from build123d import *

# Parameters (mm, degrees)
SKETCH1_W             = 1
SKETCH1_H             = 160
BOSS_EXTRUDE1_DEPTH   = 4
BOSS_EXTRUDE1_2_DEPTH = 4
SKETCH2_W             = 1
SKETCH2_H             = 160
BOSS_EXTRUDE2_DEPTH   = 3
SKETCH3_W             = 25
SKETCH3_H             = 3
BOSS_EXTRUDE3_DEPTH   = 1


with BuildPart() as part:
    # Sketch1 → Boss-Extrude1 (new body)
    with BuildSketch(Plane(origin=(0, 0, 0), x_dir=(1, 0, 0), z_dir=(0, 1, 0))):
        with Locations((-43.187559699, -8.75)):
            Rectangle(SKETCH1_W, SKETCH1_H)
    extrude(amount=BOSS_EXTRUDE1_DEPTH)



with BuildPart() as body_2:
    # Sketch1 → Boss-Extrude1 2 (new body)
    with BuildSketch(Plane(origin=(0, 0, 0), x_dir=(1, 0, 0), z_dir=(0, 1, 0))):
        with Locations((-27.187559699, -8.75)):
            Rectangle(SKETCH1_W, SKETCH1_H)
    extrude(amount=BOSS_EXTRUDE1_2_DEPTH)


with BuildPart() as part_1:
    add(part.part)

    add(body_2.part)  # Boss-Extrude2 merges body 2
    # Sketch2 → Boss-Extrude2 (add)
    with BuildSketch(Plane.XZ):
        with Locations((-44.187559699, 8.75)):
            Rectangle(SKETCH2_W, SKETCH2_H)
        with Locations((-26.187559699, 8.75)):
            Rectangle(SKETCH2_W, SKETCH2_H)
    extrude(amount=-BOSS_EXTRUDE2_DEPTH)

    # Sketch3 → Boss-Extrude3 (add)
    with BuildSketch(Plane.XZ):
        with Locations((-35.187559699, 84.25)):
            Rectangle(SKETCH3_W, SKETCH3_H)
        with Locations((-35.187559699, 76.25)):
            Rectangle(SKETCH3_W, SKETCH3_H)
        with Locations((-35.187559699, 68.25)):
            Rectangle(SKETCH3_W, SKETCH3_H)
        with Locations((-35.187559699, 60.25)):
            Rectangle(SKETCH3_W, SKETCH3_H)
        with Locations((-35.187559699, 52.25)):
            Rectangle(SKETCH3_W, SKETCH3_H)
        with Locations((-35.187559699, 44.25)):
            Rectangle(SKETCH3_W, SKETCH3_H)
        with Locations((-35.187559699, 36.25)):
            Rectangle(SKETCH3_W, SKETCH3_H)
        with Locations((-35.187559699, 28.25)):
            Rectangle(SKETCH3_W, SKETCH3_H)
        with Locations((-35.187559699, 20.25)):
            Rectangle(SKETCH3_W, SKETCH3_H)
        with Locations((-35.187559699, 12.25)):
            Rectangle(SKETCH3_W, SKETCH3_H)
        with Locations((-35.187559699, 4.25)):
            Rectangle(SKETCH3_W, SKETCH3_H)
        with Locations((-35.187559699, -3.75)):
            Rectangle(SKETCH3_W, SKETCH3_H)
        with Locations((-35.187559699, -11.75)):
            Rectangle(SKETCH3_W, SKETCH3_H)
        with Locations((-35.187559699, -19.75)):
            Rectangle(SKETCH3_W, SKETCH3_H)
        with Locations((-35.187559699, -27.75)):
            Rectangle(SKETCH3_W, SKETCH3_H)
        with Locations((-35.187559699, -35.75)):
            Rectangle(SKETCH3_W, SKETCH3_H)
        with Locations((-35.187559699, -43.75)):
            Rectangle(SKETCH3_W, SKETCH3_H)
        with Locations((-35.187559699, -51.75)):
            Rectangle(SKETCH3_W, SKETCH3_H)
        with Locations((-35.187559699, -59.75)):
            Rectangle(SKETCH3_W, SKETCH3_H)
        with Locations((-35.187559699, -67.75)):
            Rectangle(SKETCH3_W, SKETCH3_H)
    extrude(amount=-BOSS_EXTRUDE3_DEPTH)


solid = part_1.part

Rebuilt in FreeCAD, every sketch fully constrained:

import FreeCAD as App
import Part
import Sketcher

V = App.Vector

doc = App.newDocument("Part")
body = doc.addObject("PartDesign::Body", "Body")

# Sketch on XZ plane
sketch1 = body.newObject("Sketcher::SketchObject", "Sketch")
sketch1.AttachmentSupport = (doc.getObject("XZ_Plane"), [""])
sketch1.MapMode = "FlatFace"
sketch1.addGeometry([
    Part.LineSegment(V(-43.7, -71.2, 0), V(-43.7, 88.8, 0)),
    Part.LineSegment(V(-43.7, 88.8, 0), V(-42.7, 88.8, 0)),
    Part.LineSegment(V(-42.7, 88.8, 0), V(-42.7, -71.2, 0)),
    Part.LineSegment(V(-42.7, -71.2, 0), V(-43.7, -71.2, 0)),
], False)
sketch1.addConstraint([
    Sketcher.Constraint("Coincident", 0, 2, 1, 1),
    Sketcher.Constraint("Coincident", 1, 2, 2, 1),
    Sketcher.Constraint("Coincident", 2, 2, 3, 1),
    Sketcher.Constraint("Coincident", 3, 2, 0, 1),
    Sketcher.Constraint("Vertical", 0),
    Sketcher.Constraint("Horizontal", 1),
    Sketcher.Constraint("Vertical", 2),
    Sketcher.Constraint("Horizontal", 3),
    Sketcher.Constraint("DistanceX", 1, 1, 1, 2, 1.0),
    Sketcher.Constraint("DistanceY", 0, 1, 0, 2, 160.0),
    Sketcher.Constraint("DistanceY", -1, 1, 0, 2, 88.75),
    Sketcher.Constraint("DistanceX", 0, 2, -1, 1, 43.68756),
])
pad1 = body.newObject("PartDesign::Pad", "Pad")
pad1.Profile = sketch1
pad1.Length = 4
pad1.Reversed = True
body2 = doc.addObject("PartDesign::Body", "Body001")

# Sketch on XZ plane
sketch2 = body2.newObject("Sketcher::SketchObject", "Sketch001")
sketch2.AttachmentSupport = (doc.getObject("XZ_Plane001"), [""])
sketch2.MapMode = "FlatFace"
sketch2.addGeometry([
    Part.LineSegment(V(-27.7, -71.2, 0), V(-27.7, 88.8, 0)),
    Part.LineSegment(V(-27.7, 88.8, 0), V(-26.7, 88.8, 0)),
    Part.LineSegment(V(-26.7, 88.8, 0), V(-26.7, -71.2, 0)),
    Part.LineSegment(V(-26.7, -71.2, 0), V(-27.7, -71.2, 0)),
], False)
sketch2.addConstraint([
    Sketcher.Constraint("Coincident", 0, 2, 1, 1),
    Sketcher.Constraint("Coincident", 1, 2, 2, 1),
    Sketcher.Constraint("Coincident", 2, 2, 3, 1),
    Sketcher.Constraint("Coincident", 3, 2, 0, 1),
    Sketcher.Constraint("Vertical", 0),
    Sketcher.Constraint("Horizontal", 1),
    Sketcher.Constraint("Vertical", 2),
    Sketcher.Constraint("Horizontal", 3),
    Sketcher.Constraint("DistanceX", 1, 1, 1, 2, 1.0),
    Sketcher.Constraint("DistanceY", 0, 1, 0, 2, 160.0),
    Sketcher.Constraint("DistanceY", -1, 1, 0, 2, 88.75),
    Sketcher.Constraint("DistanceX", 0, 2, -1, 1, 27.68756),
])
pad2 = body2.newObject("PartDesign::Pad", "Pad001")
pad2.Profile = sketch2
pad2.Length = 4
pad2.Reversed = True
body.AllowCompound = True
doc.recompute()

boolean = body.newObject("PartDesign::Boolean", "Boolean")
boolean.Type = "Fuse"
boolean.addObjects([body2])

# Sketch on XZ plane
sketch3 = body.newObject("Sketcher::SketchObject", "Sketch002")
sketch3.AttachmentSupport = (doc.getObject("XZ_Plane"), [""])
sketch3.MapMode = "FlatFace"
sketch3.addGeometry([
    Part.LineSegment(V(-44.7, 88.8, 0), V(-44.7, -71.2, 0)),  # 0
    Part.LineSegment(V(-44.7, -71.2, 0), V(-43.7, -71.2, 0)),  # 1
    Part.LineSegment(V(-43.7, -71.2, 0), V(-43.7, 88.8, 0)),  # 2
    Part.LineSegment(V(-43.7, 88.8, 0), V(-44.7, 88.8, 0)),  # 3
    Part.LineSegment(V(-26.7, 88.8, 0), V(-26.7, -71.2, 0)),  # 4
    Part.LineSegment(V(-26.7, -71.2, 0), V(-25.7, -71.2, 0)),  # 5
    Part.LineSegment(V(-25.7, -71.2, 0), V(-25.7, 88.8, 0)),  # 6
    Part.LineSegment(V(-25.7, 88.8, 0), V(-26.7, 88.8, 0)),  # 7
], False)
sketch3.addConstraint([
    Sketcher.Constraint("Coincident", 0, 2, 1, 1),
    Sketcher.Constraint("Coincident", 1, 2, 2, 1),
    Sketcher.Constraint("Coincident", 2, 2, 3, 1),
    Sketcher.Constraint("Coincident", 3, 2, 0, 1),
    Sketcher.Constraint("Coincident", 4, 2, 5, 1),
    Sketcher.Constraint("Coincident", 5, 2, 6, 1),
    Sketcher.Constraint("Coincident", 6, 2, 7, 1),
    Sketcher.Constraint("Coincident", 7, 2, 4, 1),
    Sketcher.Constraint("Vertical", 0),
    Sketcher.Constraint("Horizontal", 1),
    Sketcher.Constraint("Vertical", 2),
    Sketcher.Constraint("Horizontal", 3),
    Sketcher.Constraint("Vertical", 4),
    Sketcher.Constraint("Horizontal", 5),
    Sketcher.Constraint("Vertical", 6),
    Sketcher.Constraint("Horizontal", 7),
    Sketcher.Constraint("Horizontal", 1, 2, 4, 2),
    Sketcher.Constraint("Horizontal", 3, 2, 6, 2),
    Sketcher.Constraint("Equal", 3, 5),
    Sketcher.Constraint("DistanceX", 1, 1, 1, 2, 1.0),
    Sketcher.Constraint("DistanceY", 0, 2, 0, 1, 160.0),
    Sketcher.Constraint("DistanceX", 1, 2, 4, 2, 17.0),
    Sketcher.Constraint("DistanceY", 0, 2, -1, 1, 71.25),
    Sketcher.Constraint("DistanceX", 0, 2, -1, 1, 44.68756),
])
pad3 = body.newObject("PartDesign::Pad", "Pad002")
pad3.Profile = sketch3
pad3.Length = 3
pad3.Reversed = True

# Sketch on XZ plane
sketch4 = body.newObject("Sketcher::SketchObject", "Sketch003")
sketch4.AttachmentSupport = (doc.getObject("XZ_Plane"), [""])
sketch4.MapMode = "FlatFace"
sketch4.addGeometry([
    Part.LineSegment(V(-47.7, 85.8, 0), V(-47.7, 82.8, 0)),  # 0
    Part.LineSegment(V(-47.7, 82.8, 0), V(-22.7, 82.8, 0)),  # 1
    Part.LineSegment(V(-22.7, 82.8, 0), V(-22.7, 85.8, 0)),  # 2
    Part.LineSegment(V(-22.7, 85.8, 0), V(-47.7, 85.8, 0)),  # 3
    Part.LineSegment(V(-47.7, 77.8, 0), V(-47.7, 74.8, 0)),  # 4
    Part.LineSegment(V(-47.7, 74.8, 0), V(-22.7, 74.8, 0)),  # 5
    Part.LineSegment(V(-22.7, 74.8, 0), V(-22.7, 77.8, 0)),  # 6
    Part.LineSegment(V(-22.7, 77.8, 0), V(-47.7, 77.8, 0)),  # 7
    Part.LineSegment(V(-47.7, 69.8, 0), V(-47.7, 66.8, 0)),  # 8
    Part.LineSegment(V(-47.7, 66.8, 0), V(-22.7, 66.8, 0)),  # 9
    Part.LineSegment(V(-22.7, 66.8, 0), V(-22.7, 69.8, 0)),  # 10
    Part.LineSegment(V(-22.7, 69.8, 0), V(-47.7, 69.8, 0)),  # 11
    Part.LineSegment(V(-47.7, 61.8, 0), V(-47.7, 58.8, 0)),  # 12
    Part.LineSegment(V(-47.7, 58.8, 0), V(-22.7, 58.8, 0)),  # 13
    Part.LineSegment(V(-22.7, 58.8, 0), V(-22.7, 61.8, 0)),  # 14
    Part.LineSegment(V(-22.7, 61.8, 0), V(-47.7, 61.8, 0)),  # 15
    Part.LineSegment(V(-47.7, 53.8, 0), V(-47.7, 50.8, 0)),  # 16
    Part.LineSegment(V(-47.7, 50.8, 0), V(-22.7, 50.8, 0)),  # 17
    Part.LineSegment(V(-22.7, 50.8, 0), V(-22.7, 53.8, 0)),  # 18
    Part.LineSegment(V(-22.7, 53.8, 0), V(-47.7, 53.8, 0)),  # 19
    Part.LineSegment(V(-47.7, 45.8, 0), V(-47.7, 42.8, 0)),  # 20
    Part.LineSegment(V(-47.7, 42.8, 0), V(-22.7, 42.8, 0)),  # 21
    Part.LineSegment(V(-22.7, 42.8, 0), V(-22.7, 45.8, 0)),  # 22
    Part.LineSegment(V(-22.7, 45.8, 0), V(-47.7, 45.8, 0)),  # 23
    Part.LineSegment(V(-47.7, 37.8, 0), V(-47.7, 34.8, 0)),  # 24
    Part.LineSegment(V(-47.7, 34.8, 0), V(-22.7, 34.8, 0)),  # 25
    Part.LineSegment(V(-22.7, 34.8, 0), V(-22.7, 37.8, 0)),  # 26
    Part.LineSegment(V(-22.7, 37.8, 0), V(-47.7, 37.8, 0)),  # 27
    Part.LineSegment(V(-47.7, 29.8, 0), V(-47.7, 26.8, 0)),  # 28
    Part.LineSegment(V(-47.7, 26.8, 0), V(-22.7, 26.8, 0)),  # 29
    Part.LineSegment(V(-22.7, 26.8, 0), V(-22.7, 29.8, 0)),  # 30
    Part.LineSegment(V(-22.7, 29.8, 0), V(-47.7, 29.8, 0)),  # 31
    Part.LineSegment(V(-47.7, 21.8, 0), V(-47.7, 18.8, 0)),  # 32
    Part.LineSegment(V(-47.7, 18.8, 0), V(-22.7, 18.8, 0)),  # 33
    Part.LineSegment(V(-22.7, 18.8, 0), V(-22.7, 21.8, 0)),  # 34
    Part.LineSegment(V(-22.7, 21.8, 0), V(-47.7, 21.8, 0)),  # 35
    Part.LineSegment(V(-47.7, 13.8, 0), V(-47.7, 10.8, 0)),  # 36
    Part.LineSegment(V(-47.7, 10.8, 0), V(-22.7, 10.8, 0)),  # 37
    Part.LineSegment(V(-22.7, 10.8, 0), V(-22.7, 13.8, 0)),  # 38
    Part.LineSegment(V(-22.7, 13.8, 0), V(-47.7, 13.8, 0)),  # 39
    Part.LineSegment(V(-47.7, 5.8, 0), V(-47.7, 2.8, 0)),  # 40
    Part.LineSegment(V(-47.7, 2.8, 0), V(-22.7, 2.8, 0)),  # 41
    Part.LineSegment(V(-22.7, 2.8, 0), V(-22.7, 5.8, 0)),  # 42
    Part.LineSegment(V(-22.7, 5.8, 0), V(-47.7, 5.8, 0)),  # 43
    Part.LineSegment(V(-47.7, -2.2, 0), V(-47.7, -5.2, 0)),  # 44
    Part.LineSegment(V(-47.7, -5.2, 0), V(-22.7, -5.2, 0)),  # 45
    Part.LineSegment(V(-22.7, -5.2, 0), V(-22.7, -2.2, 0)),  # 46
    Part.LineSegment(V(-22.7, -2.2, 0), V(-47.7, -2.2, 0)),  # 47
    Part.LineSegment(V(-47.7, -10.2, 0), V(-47.7, -13.2, 0)),  # 48
    Part.LineSegment(V(-47.7, -13.2, 0), V(-22.7, -13.2, 0)),  # 49
    Part.LineSegment(V(-22.7, -13.2, 0), V(-22.7, -10.2, 0)),  # 50
    Part.LineSegment(V(-22.7, -10.2, 0), V(-47.7, -10.2, 0)),  # 51
    Part.LineSegment(V(-47.7, -18.2, 0), V(-47.7, -21.2, 0)),  # 52
    Part.LineSegment(V(-47.7, -21.2, 0), V(-22.7, -21.2, 0)),  # 53
    Part.LineSegment(V(-22.7, -21.2, 0), V(-22.7, -18.2, 0)),  # 54
    Part.LineSegment(V(-22.7, -18.2, 0), V(-47.7, -18.2, 0)),  # 55
    Part.LineSegment(V(-47.7, -26.2, 0), V(-47.7, -29.2, 0)),  # 56
    Part.LineSegment(V(-47.7, -29.2, 0), V(-22.7, -29.2, 0)),  # 57
    Part.LineSegment(V(-22.7, -29.2, 0), V(-22.7, -26.2, 0)),  # 58
    Part.LineSegment(V(-22.7, -26.2, 0), V(-47.7, -26.2, 0)),  # 59
    Part.LineSegment(V(-47.7, -34.2, 0), V(-47.7, -37.2, 0)),  # 60
    Part.LineSegment(V(-47.7, -37.2, 0), V(-22.7, -37.2, 0)),  # 61
    Part.LineSegment(V(-22.7, -37.2, 0), V(-22.7, -34.2, 0)),  # 62
    Part.LineSegment(V(-22.7, -34.2, 0), V(-47.7, -34.2, 0)),  # 63
    Part.LineSegment(V(-47.7, -42.2, 0), V(-47.7, -45.2, 0)),  # 64
    Part.LineSegment(V(-47.7, -45.2, 0), V(-22.7, -45.2, 0)),  # 65
    Part.LineSegment(V(-22.7, -45.2, 0), V(-22.7, -42.2, 0)),  # 66
    Part.LineSegment(V(-22.7, -42.2, 0), V(-47.7, -42.2, 0)),  # 67
    Part.LineSegment(V(-47.7, -50.2, 0), V(-47.7, -53.2, 0)),  # 68
    Part.LineSegment(V(-47.7, -53.2, 0), V(-22.7, -53.2, 0)),  # 69
    Part.LineSegment(V(-22.7, -53.2, 0), V(-22.7, -50.2, 0)),  # 70
    Part.LineSegment(V(-22.7, -50.2, 0), V(-47.7, -50.2, 0)),  # 71
    Part.LineSegment(V(-47.7, -58.2, 0), V(-47.7, -61.2, 0)),  # 72
    Part.LineSegment(V(-47.7, -61.2, 0), V(-22.7, -61.2, 0)),  # 73
    Part.LineSegment(V(-22.7, -61.2, 0), V(-22.7, -58.2, 0)),  # 74
    Part.LineSegment(V(-22.7, -58.2, 0), V(-47.7, -58.2, 0)),  # 75
    Part.LineSegment(V(-47.7, -66.2, 0), V(-47.7, -69.2, 0)),  # 76
    Part.LineSegment(V(-47.7, -69.2, 0), V(-22.7, -69.2, 0)),  # 77
    Part.LineSegment(V(-22.7, -69.2, 0), V(-22.7, -66.2, 0)),  # 78
    Part.LineSegment(V(-22.7, -66.2, 0), V(-47.7, -66.2, 0)),  # 79
], False)
sketch4.addConstraint([
    Sketcher.Constraint("Coincident", 0, 2, 1, 1),
    Sketcher.Constraint("Coincident", 1, 2, 2, 1),
    Sketcher.Constraint("Coincident", 2, 2, 3, 1),
    Sketcher.Constraint("Coincident", 3, 2, 0, 1),
    Sketcher.Constraint("Coincident", 4, 2, 5, 1),
    Sketcher.Constraint("Coincident", 5, 2, 6, 1),
    Sketcher.Constraint("Coincident", 6, 2, 7, 1),
    Sketcher.Constraint("Coincident", 7, 2, 4, 1),
    Sketcher.Constraint("Coincident", 8, 2, 9, 1),
    Sketcher.Constraint("Coincident", 9, 2, 10, 1),
    Sketcher.Constraint("Coincident", 10, 2, 11, 1),
    Sketcher.Constraint("Coincident", 11, 2, 8, 1),
    Sketcher.Constraint("Coincident", 12, 2, 13, 1),
    Sketcher.Constraint("Coincident", 13, 2, 14, 1),
    Sketcher.Constraint("Coincident", 14, 2, 15, 1),
    Sketcher.Constraint("Coincident", 15, 2, 12, 1),
    Sketcher.Constraint("Coincident", 16, 2, 17, 1),
    Sketcher.Constraint("Coincident", 17, 2, 18, 1),
    Sketcher.Constraint("Coincident", 18, 2, 19, 1),
    Sketcher.Constraint("Coincident", 19, 2, 16, 1),
    Sketcher.Constraint("Coincident", 20, 2, 21, 1),
    Sketcher.Constraint("Coincident", 21, 2, 22, 1),
    Sketcher.Constraint("Coincident", 22, 2, 23, 1),
    Sketcher.Constraint("Coincident", 23, 2, 20, 1),
    Sketcher.Constraint("Coincident", 24, 2, 25, 1),
    Sketcher.Constraint("Coincident", 25, 2, 26, 1),
    Sketcher.Constraint("Coincident", 26, 2, 27, 1),
    Sketcher.Constraint("Coincident", 27, 2, 24, 1),
    Sketcher.Constraint("Coincident", 28, 2, 29, 1),
    Sketcher.Constraint("Coincident", 29, 2, 30, 1),
    Sketcher.Constraint("Coincident", 30, 2, 31, 1),
    Sketcher.Constraint("Coincident", 31, 2, 28, 1),
    Sketcher.Constraint("Coincident", 32, 2, 33, 1),
    Sketcher.Constraint("Coincident", 33, 2, 34, 1),
    Sketcher.Constraint("Coincident", 34, 2, 35, 1),
    Sketcher.Constraint("Coincident", 35, 2, 32, 1),
    Sketcher.Constraint("Coincident", 36, 2, 37, 1),
    Sketcher.Constraint("Coincident", 37, 2, 38, 1),
    Sketcher.Constraint("Coincident", 38, 2, 39, 1),
    Sketcher.Constraint("Coincident", 39, 2, 36, 1),
    Sketcher.Constraint("Coincident", 40, 2, 41, 1),
    Sketcher.Constraint("Coincident", 41, 2, 42, 1),
    Sketcher.Constraint("Coincident", 42, 2, 43, 1),
    Sketcher.Constraint("Coincident", 43, 2, 40, 1),
    Sketcher.Constraint("Coincident", 44, 2, 45, 1),
    Sketcher.Constraint("Coincident", 45, 2, 46, 1),
    Sketcher.Constraint("Coincident", 46, 2, 47, 1),
    Sketcher.Constraint("Coincident", 47, 2, 44, 1),
    Sketcher.Constraint("Coincident", 48, 2, 49, 1),
    Sketcher.Constraint("Coincident", 49, 2, 50, 1),
    Sketcher.Constraint("Coincident", 50, 2, 51, 1),
    Sketcher.Constraint("Coincident", 51, 2, 48, 1),
    Sketcher.Constraint("Coincident", 52, 2, 53, 1),
    Sketcher.Constraint("Coincident", 53, 2, 54, 1),
    Sketcher.Constraint("Coincident", 54, 2, 55, 1),
    Sketcher.Constraint("Coincident", 55, 2, 52, 1),
    Sketcher.Constraint("Coincident", 56, 2, 57, 1),
    Sketcher.Constraint("Coincident", 57, 2, 58, 1),
    Sketcher.Constraint("Coincident", 58, 2, 59, 1),
    Sketcher.Constraint("Coincident", 59, 2, 56, 1),
    Sketcher.Constraint("Coincident", 60, 2, 61, 1),
    Sketcher.Constraint("Coincident", 61, 2, 62, 1),
    Sketcher.Constraint("Coincident", 62, 2, 63, 1),
    Sketcher.Constraint("Coincident", 63, 2, 60, 1),
    Sketcher.Constraint("Coincident", 64, 2, 65, 1),
    Sketcher.Constraint("Coincident", 65, 2, 66, 1),
    Sketcher.Constraint("Coincident", 66, 2, 67, 1),
    Sketcher.Constraint("Coincident", 67, 2, 64, 1),
    Sketcher.Constraint("Coincident", 68, 2, 69, 1),
    Sketcher.Constraint("Coincident", 69, 2, 70, 1),
    Sketcher.Constraint("Coincident", 70, 2, 71, 1),
    Sketcher.Constraint("Coincident", 71, 2, 68, 1),
    Sketcher.Constraint("Coincident", 72, 2, 73, 1),
    Sketcher.Constraint("Coincident", 73, 2, 74, 1),
    Sketcher.Constraint("Coincident", 74, 2, 75, 1),
    Sketcher.Constraint("Coincident", 75, 2, 72, 1),
    Sketcher.Constraint("Coincident", 76, 2, 77, 1),
    Sketcher.Constraint("Coincident", 77, 2, 78, 1),
    Sketcher.Constraint("Coincident", 78, 2, 79, 1),
    Sketcher.Constraint("Coincident", 79, 2, 76, 1),
    Sketcher.Constraint("Vertical", 0),
    Sketcher.Constraint("Horizontal", 1),
    Sketcher.Constraint("Vertical", 2),
    Sketcher.Constraint("Horizontal", 3),
    Sketcher.Constraint("Vertical", 4),
    Sketcher.Constraint("Horizontal", 5),
    Sketcher.Constraint("Vertical", 6),
    Sketcher.Constraint("Horizontal", 7),
    Sketcher.Constraint("Vertical", 8),
    Sketcher.Constraint("Horizontal", 9),
    Sketcher.Constraint("Vertical", 10),
    Sketcher.Constraint("Horizontal", 11),
    Sketcher.Constraint("Vertical", 12),
    Sketcher.Constraint("Horizontal", 13),
    Sketcher.Constraint("Vertical", 14),
    Sketcher.Constraint("Horizontal", 15),
    Sketcher.Constraint("Vertical", 16),
    Sketcher.Constraint("Horizontal", 17),
    Sketcher.Constraint("Vertical", 18),
    Sketcher.Constraint("Horizontal", 19),
    Sketcher.Constraint("Vertical", 20),
    Sketcher.Constraint("Horizontal", 21),
    Sketcher.Constraint("Vertical", 22),
    Sketcher.Constraint("Horizontal", 23),
    Sketcher.Constraint("Vertical", 24),
    Sketcher.Constraint("Horizontal", 25),
    Sketcher.Constraint("Vertical", 26),
    Sketcher.Constraint("Horizontal", 27),
    Sketcher.Constraint("Vertical", 28),
    Sketcher.Constraint("Horizontal", 29),
    Sketcher.Constraint("Vertical", 30),
    Sketcher.Constraint("Horizontal", 31),
    Sketcher.Constraint("Vertical", 32),
    Sketcher.Constraint("Horizontal", 33),
    Sketcher.Constraint("Vertical", 34),
    Sketcher.Constraint("Horizontal", 35),
    Sketcher.Constraint("Vertical", 36),
    Sketcher.Constraint("Horizontal", 37),
    Sketcher.Constraint("Vertical", 38),
    Sketcher.Constraint("Horizontal", 39),
    Sketcher.Constraint("Vertical", 40),
    Sketcher.Constraint("Horizontal", 41),
    Sketcher.Constraint("Vertical", 42),
    Sketcher.Constraint("Horizontal", 43),
    Sketcher.Constraint("Vertical", 44),
    Sketcher.Constraint("Horizontal", 45),
    Sketcher.Constraint("Vertical", 46),
    Sketcher.Constraint("Horizontal", 47),
    Sketcher.Constraint("Vertical", 48),
    Sketcher.Constraint("Horizontal", 49),
    Sketcher.Constraint("Vertical", 50),
    Sketcher.Constraint("Horizontal", 51),
    Sketcher.Constraint("Vertical", 52),
    Sketcher.Constraint("Horizontal", 53),
    Sketcher.Constraint("Vertical", 54),
    Sketcher.Constraint("Horizontal", 55),
    Sketcher.Constraint("Vertical", 56),
    Sketcher.Constraint("Horizontal", 57),
    Sketcher.Constraint("Vertical", 58),
    Sketcher.Constraint("Horizontal", 59),
    Sketcher.Constraint("Vertical", 60),
    Sketcher.Constraint("Horizontal", 61),
    Sketcher.Constraint("Vertical", 62),
    Sketcher.Constraint("Horizontal", 63),
    Sketcher.Constraint("Vertical", 64),
    Sketcher.Constraint("Horizontal", 65),
    Sketcher.Constraint("Vertical", 66),
    Sketcher.Constraint("Horizontal", 67),
    Sketcher.Constraint("Vertical", 68),
    Sketcher.Constraint("Horizontal", 69),
    Sketcher.Constraint("Vertical", 70),
    Sketcher.Constraint("Horizontal", 71),
    Sketcher.Constraint("Vertical", 72),
    Sketcher.Constraint("Horizontal", 73),
    Sketcher.Constraint("Vertical", 74),
    Sketcher.Constraint("Horizontal", 75),
    Sketcher.Constraint("Vertical", 76),
    Sketcher.Constraint("Horizontal", 77),
    Sketcher.Constraint("Vertical", 78),
    Sketcher.Constraint("Horizontal", 79),
    Sketcher.Constraint("Vertical", 3, 2, 4, 2),
    Sketcher.Constraint("Vertical", 2, 2, 5, 2),
    Sketcher.Constraint("Vertical", 7, 2, 8, 2),
    Sketcher.Constraint("Vertical", 6, 2, 9, 2),
    Sketcher.Constraint("Vertical", 11, 2, 12, 2),
    Sketcher.Constraint("Vertical", 10, 2, 13, 2),
    Sketcher.Constraint("Vertical", 15, 2, 16, 2),
    Sketcher.Constraint("Vertical", 14, 2, 17, 2),
    Sketcher.Constraint("Vertical", 19, 2, 20, 2),
    Sketcher.Constraint("Vertical", 18, 2, 21, 2),
    Sketcher.Constraint("Vertical", 23, 2, 24, 2),
    Sketcher.Constraint("Vertical", 22, 2, 25, 2),
    Sketcher.Constraint("Vertical", 27, 2, 28, 2),
    Sketcher.Constraint("Vertical", 26, 2, 29, 2),
    Sketcher.Constraint("Vertical", 31, 2, 32, 2),
    Sketcher.Constraint("Vertical", 30, 2, 33, 2),
    Sketcher.Constraint("Vertical", 35, 2, 36, 2),
    Sketcher.Constraint("Vertical", 34, 2, 37, 2),
    Sketcher.Constraint("Vertical", 39, 2, 40, 2),
    Sketcher.Constraint("Vertical", 38, 2, 41, 2),
    Sketcher.Constraint("Vertical", 43, 2, 44, 2),
    Sketcher.Constraint("Vertical", 42, 2, 45, 2),
    Sketcher.Constraint("Vertical", 47, 2, 48, 2),
    Sketcher.Constraint("Vertical", 46, 2, 49, 2),
    Sketcher.Constraint("Vertical", 51, 2, 52, 2),
    Sketcher.Constraint("Vertical", 50, 2, 53, 2),
    Sketcher.Constraint("Vertical", 55, 2, 56, 2),
    Sketcher.Constraint("Vertical", 54, 2, 57, 2),
    Sketcher.Constraint("Vertical", 59, 2, 60, 2),
    Sketcher.Constraint("Vertical", 58, 2, 61, 2),
    Sketcher.Constraint("Vertical", 63, 2, 64, 2),
    Sketcher.Constraint("Vertical", 62, 2, 65, 2),
    Sketcher.Constraint("Vertical", 67, 2, 68, 2),
    Sketcher.Constraint("Vertical", 66, 2, 69, 2),
    Sketcher.Constraint("Vertical", 71, 2, 72, 2),
    Sketcher.Constraint("Vertical", 70, 2, 73, 2),
    Sketcher.Constraint("Vertical", 75, 2, 76, 2),
    Sketcher.Constraint("Vertical", 74, 2, 77, 2),
    Sketcher.Constraint("Equal", 2, 4),
    Sketcher.Constraint("Equal", 6, 8),
    Sketcher.Constraint("Equal", 10, 12),
    Sketcher.Constraint("Equal", 14, 16),
    Sketcher.Constraint("Equal", 18, 20),
    Sketcher.Constraint("Equal", 22, 24),
    Sketcher.Constraint("Equal", 26, 28),
    Sketcher.Constraint("Equal", 30, 32),
    Sketcher.Constraint("Equal", 34, 36),
    Sketcher.Constraint("Equal", 38, 40),
    Sketcher.Constraint("Equal", 42, 44),
    Sketcher.Constraint("Equal", 46, 48),
    Sketcher.Constraint("Equal", 50, 52),
    Sketcher.Constraint("Equal", 54, 56),
    Sketcher.Constraint("Equal", 58, 60),
    Sketcher.Constraint("Equal", 62, 64),
    Sketcher.Constraint("Equal", 66, 68),
    Sketcher.Constraint("Equal", 70, 72),
    Sketcher.Constraint("Equal", 74, 76),
    Sketcher.Constraint("DistanceX", 1, 1, 1, 2, 25.0),
    Sketcher.Constraint("DistanceY", 0, 2, 0, 1, 3.0),
    Sketcher.Constraint("DistanceY", -1, 1, 0, 2, 82.75),
    Sketcher.Constraint("DistanceY", -1, 1, 4, 2, 74.75),
    Sketcher.Constraint("DistanceY", -1, 1, 8, 2, 66.75),
    Sketcher.Constraint("DistanceY", -1, 1, 12, 2, 58.75),
    Sketcher.Constraint("DistanceY", -1, 1, 16, 2, 50.75),
    Sketcher.Constraint("DistanceY", -1, 1, 20, 2, 42.75),
    Sketcher.Constraint("DistanceY", -1, 1, 24, 2, 34.75),
    Sketcher.Constraint("DistanceY", -1, 1, 28, 2, 26.75),
    Sketcher.Constraint("DistanceY", -1, 1, 32, 2, 18.75),
    Sketcher.Constraint("DistanceY", -1, 1, 36, 2, 10.75),
    Sketcher.Constraint("DistanceY", -1, 1, 40, 2, 2.75),
    Sketcher.Constraint("DistanceY", 44, 2, -1, 1, 5.25),
    Sketcher.Constraint("DistanceY", 48, 2, -1, 1, 13.25),
    Sketcher.Constraint("DistanceY", 52, 2, -1, 1, 21.25),
    Sketcher.Constraint("DistanceY", 56, 2, -1, 1, 29.25),
    Sketcher.Constraint("DistanceY", 60, 2, -1, 1, 37.25),
    Sketcher.Constraint("DistanceY", 64, 2, -1, 1, 45.25),
    Sketcher.Constraint("DistanceY", 68, 2, -1, 1, 53.25),
    Sketcher.Constraint("DistanceY", 72, 2, -1, 1, 61.25),
    Sketcher.Constraint("DistanceY", 76, 2, -1, 1, 69.25),
    Sketcher.Constraint("DistanceX", 0, 2, -1, 1, 47.68756),
])
pad4 = body.newObject("PartDesign::Pad", "Pad003")
pad4.Profile = sketch4
pad4.Length = 1
pad4.Reversed = True

doc.recompute()
